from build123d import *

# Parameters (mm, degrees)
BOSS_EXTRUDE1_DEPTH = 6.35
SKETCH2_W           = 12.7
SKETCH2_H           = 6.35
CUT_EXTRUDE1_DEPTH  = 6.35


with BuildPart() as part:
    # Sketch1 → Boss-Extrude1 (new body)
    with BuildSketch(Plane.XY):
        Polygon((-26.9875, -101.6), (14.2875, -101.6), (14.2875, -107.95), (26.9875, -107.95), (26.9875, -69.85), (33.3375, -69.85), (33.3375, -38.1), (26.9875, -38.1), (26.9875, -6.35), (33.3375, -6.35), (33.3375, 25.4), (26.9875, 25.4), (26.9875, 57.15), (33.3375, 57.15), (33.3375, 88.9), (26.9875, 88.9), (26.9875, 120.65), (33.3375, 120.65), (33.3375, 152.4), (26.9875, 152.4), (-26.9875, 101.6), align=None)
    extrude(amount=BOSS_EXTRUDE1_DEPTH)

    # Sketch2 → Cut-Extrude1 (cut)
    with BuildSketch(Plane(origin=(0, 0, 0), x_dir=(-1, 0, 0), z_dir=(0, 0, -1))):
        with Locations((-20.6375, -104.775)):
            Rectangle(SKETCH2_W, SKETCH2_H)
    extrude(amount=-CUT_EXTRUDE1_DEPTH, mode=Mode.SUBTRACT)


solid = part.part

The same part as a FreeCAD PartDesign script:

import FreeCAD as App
import Part
import Sketcher
from FreeCAD import Vector
Q = App.Units.Quantity


def add_polygon(sketch, points):
    """Adds a closed chain of lines whose ends are joined by coincident constraints."""
    first, n = sketch.GeometryCount, len(points)
    for a, b in zip(points, points[1:] + points[:1]):
        sketch.addGeometry(Part.LineSegment(App.Vector(*a, 0), App.Vector(*b, 0)), False)
    for i in range(n):
        sketch.addConstraint(Sketcher.Constraint("Coincident", first + i, 2, first + (i + 1) % n, 1))

doc = App.newDocument("Part")
body = doc.addObject("PartDesign::Body", "Body")

sketch1 = body.newObject("Sketcher::SketchObject", "Sketch")
sketch1.AttachmentSupport = (doc.getObject("XY_Plane"), [""])
sketch1.MapMode = "FlatFace"
add_polygon(sketch1, [(-26.9875, -101.6), (14.2875, -101.6), (14.2875, -107.95), (26.9875, -107.95), (26.9875, -69.85), (33.3375, -69.85), (33.3375, -38.1), (26.9875, -38.1), (26.9875, -6.35), (33.3375, -6.35), (33.3375, 25.4), (26.9875, 25.4), (26.9875, 57.15), (33.3375, 57.15), (33.3375, 88.9), (26.9875, 88.9), (26.9875, 120.65), (33.3375, 120.65), (33.3375, 152.4), (26.9875, 152.4), (-26.9875, 101.6)])
sketch1.addConstraint([
    Sketcher.Constraint("Horizontal", 0),
    Sketcher.Constraint("Vertical", 1),
    Sketcher.Constraint("Horizontal", 2),
    Sketcher.Constraint("Vertical", 3),
    Sketcher.Constraint("Horizontal", 4),
    Sketcher.Constraint("Vertical", 5),
    Sketcher.Constraint("Horizontal", 6),
    Sketcher.Constraint("Vertical", 7),
    Sketcher.Constraint("Horizontal", 8),
    Sketcher.Constraint("Vertical", 9),
    Sketcher.Constraint("Horizontal", 10),
    Sketcher.Constraint("Vertical", 11),
    Sketcher.Constraint("Horizontal", 12),
    Sketcher.Constraint("Vertical", 13),
    Sketcher.Constraint("Horizontal", 14),
    Sketcher.Constraint("Vertical", 15),
    Sketcher.Constraint("Horizontal", 16),
    Sketcher.Constraint("Vertical", 17),
    Sketcher.Constraint("Horizontal", 18),
    Sketcher.Constraint("Vertical", 20),
    Sketcher.Constraint("Vertical", 3, 2, 6, 2),
    Sketcher.Constraint("Vertical", 5, 2, 8, 2),
    Sketcher.Constraint("Vertical", 7, 2, 10, 2),
    Sketcher.Constraint("Vertical", 9, 2, 12, 2),
    Sketcher.Constraint("Vertical", 11, 2, 14, 2),
    Sketcher.Constraint("Vertical", 13, 2, 16, 2),
    Sketcher.Constraint("Vertical", 15, 2, 18, 2),
    Sketcher.Constraint("Equal", 18, 1),
    Sketcher.Constraint("Equal", 5, 7),
    Sketcher.Constraint("Equal", 7, 9),
    Sketcher.Constraint("Equal", 9, 11),
    Sketcher.Constraint("Equal", 11, 13),
    Sketcher.Constraint("Equal", 13, 15),
    Sketcher.Constraint("Equal", 15, 17),
    Sketcher.Constraint("DistanceY", 20, 2, 20, 1, Q("8 in")),
    Sketcher.Constraint("DistanceX", 2, 1, 2, 2, Q("0.5 in")),
    Sketcher.Constraint("DistanceY", 3, 1, 3, 2, Q("1.5 in")),
    Sketcher.Constraint("DistanceY", 0, 2, -1, 1, Q("4 in")),
    Sketcher.Constraint("DistanceY", -1, 1, 9, 2, Q("1 in")),
    Sketcher.Constraint("DistanceY", -1, 1, 17, 2, Q("6 in")),
    Sketcher.Constraint("DistanceX", 0, 1, 0, 2, Q("1.625 in")),
    Sketcher.Constraint("DistanceX", -1, 1, 0, 2, Q("0.5625 in")),
])
pad1 = body.newObject("PartDesign::Pad", "Pad")
pad1.Profile = sketch1
pad1.Length = Q("0.25 in")

sketch2 = body.newObject("Sketcher::SketchObject", "Sketch001")
sketch2.AttachmentSupport = (doc.getObject("XY_Plane"), [""])
sketch2.MapMode = "FlatFace"
add_polygon(sketch2, [(26.9875, -101.6), (26.9875, -107.95), (14.2875, -107.95), (14.2875, -101.6)])
sketch2.addConstraint([
    Sketcher.Constraint("Vertical", 0),
    Sketcher.Constraint("Horizontal", 1),
    Sketcher.Constraint("Vertical", 2),
    Sketcher.Constraint("Horizontal", 3),
    Sketcher.Constraint("DistanceX", 1, 2, 1, 1, Q("0.5 in")),
    Sketcher.Constraint("DistanceY", 2, 2, -1, 1, Q("4 in")),
    Sketcher.Constraint("DistanceY", 0, 2, 0, 1, Q("0.25 in")),
    Sketcher.Constraint("DistanceX", -1, 1, 0, 2, Q("1.0625 in")),
])
pocket1 = body.newObject("PartDesign::Pocket", "Pocket")
pocket1.Profile = sketch2
pocket1.Length = Q("0.25 in")
pocket1.Reversed = True

doc.recompute()
